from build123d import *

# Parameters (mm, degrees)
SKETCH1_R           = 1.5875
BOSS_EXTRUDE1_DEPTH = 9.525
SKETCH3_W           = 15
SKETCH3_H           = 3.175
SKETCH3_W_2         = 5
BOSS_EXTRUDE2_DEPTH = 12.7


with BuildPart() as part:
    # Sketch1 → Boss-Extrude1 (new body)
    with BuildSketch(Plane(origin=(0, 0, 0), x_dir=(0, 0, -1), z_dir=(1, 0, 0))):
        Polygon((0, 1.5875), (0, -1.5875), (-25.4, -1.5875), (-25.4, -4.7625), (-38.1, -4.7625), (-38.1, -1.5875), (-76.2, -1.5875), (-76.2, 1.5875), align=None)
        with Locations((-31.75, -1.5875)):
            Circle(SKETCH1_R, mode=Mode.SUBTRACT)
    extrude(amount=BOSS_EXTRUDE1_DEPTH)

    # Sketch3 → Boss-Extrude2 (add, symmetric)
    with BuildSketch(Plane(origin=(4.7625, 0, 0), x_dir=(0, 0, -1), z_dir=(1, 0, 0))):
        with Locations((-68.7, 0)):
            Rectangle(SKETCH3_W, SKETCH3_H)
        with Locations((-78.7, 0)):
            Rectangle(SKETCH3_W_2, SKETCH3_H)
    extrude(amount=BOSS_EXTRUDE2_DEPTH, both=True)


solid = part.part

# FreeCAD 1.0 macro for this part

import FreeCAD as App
import Part
import Sketcher
from FreeCAD import Vector
Q = App.Units.Quantity

doc = App.newDocument("Part")
params = doc.addObject("Spreadsheet::Sheet", "Params")
for row, (alias, value) in enumerate([
    ("sketch1_height", "3 in"),
    ("sketch1_height2", "1 in"),
    ("sketch1_diameter", "0.125 in"),
    ("sketch1_height3", "1.5 in"),
    ("sketch1_width", "0.125 in"),
    ("pad1_length", "0.375 in"),
    ("sketch2_width", "0.125 in"),
    ("pad2_length", "1 in"),
], start=1):
    params.set(f"A{row}", alias)
    params.set(f"B{row}", "=" + value)
    params.setAlias(f"B{row}", alias)

body = doc.addObject("PartDesign::Body", "Body")

sketch1 = doc.addObject("Sketcher::SketchObject", "Sketch")
body.addObject(sketch1)
sketch1.AttachmentSupport = (doc.YZ_Plane, [""])
sketch1.MapMode = "FlatFace"
sketch1.addGeometry(Part.LineSegment(Vector(-1.5875, 0, 0), Vector(1.5875, 0, 0)), False)
sketch1.addGeometry(Part.LineSegment(Vector(1.5875, 0, 0), Vector(1.5875, 76.2, 0)), False)
sketch1.addGeometry(Part.LineSegment(Vector(1.5875, 76.2, 0), Vector(-1.5875, 76.2, 0)), False)
sketch1.addGeometry(Part.LineSegment(Vector(-1.5875, 76.2, 0), Vector(-1.5875, 38.1, 0)), False)
sketch1.addGeometry(Part.LineSegment(Vector(-1.5875, 38.1, 0), Vector(-4.7625, 38.1, 0)), False)
sketch1.addGeometry(Part.LineSegment(Vector(-4.7625, 38.1, 0), Vector(-4.7625, 25.4, 0)), False)
sketch1.addGeometry(Part.LineSegment(Vector(-4.7625, 25.4, 0), Vector(-1.5875, 25.4, 0)), False)
sketch1.addGeometry(Part.LineSegment(Vector(-1.5875, 25.4, 0), Vector(-1.5875, 0, 0)), False)
sketch1.addGeometry(Part.Circle(Vector(-1.5875, 31.75, 0), Vector(0, 0, 1), 1.5875), False)
sketch1.addConstraint(Sketcher.Constraint("Coincident", 0, 2, 1, 1))
sketch1.addConstraint(Sketcher.Constraint("Coincident", 1, 2, 2, 1))
sketch1.addConstraint(Sketcher.Constraint("Coincident", 2, 2, 3, 1))
sketch1.addConstraint(Sketcher.Constraint("Coincident", 3, 2, 4, 1))
sketch1.addConstraint(Sketcher.Constraint("Coincident", 4, 2, 5, 1))
sketch1.addConstraint(Sketcher.Constraint("Coincident", 5, 2, 6, 1))
sketch1.addConstraint(Sketcher.Constraint("Coincident", 6, 2, 7, 1))
sketch1.addConstraint(Sketcher.Constraint("Coincident", 7, 2, 0, 1))
sketch1.addConstraint(Sketcher.Constraint("Horizontal", 0))
sketch1.addConstraint(Sketcher.Constraint("Vertical", 1))
sketch1.addConstraint(Sketcher.Constraint("Horizontal", 2))
sketch1.addConstraint(Sketcher.Constraint("Vertical", 3))
sketch1.addConstraint(Sketcher.Constraint("Horizontal", 4))
sketch1.addConstraint(Sketcher.Constraint("Vertical", 5))
sketch1.addConstraint(Sketcher.Constraint("Horizontal", 6))
sketch1.addConstraint(Sketcher.Constraint("Vertical", 7))
sketch1.addConstraint(Sketcher.Constraint("Symmetric", 0, 2, 7, 2, -1, 1))
sketch1.addConstraint(Sketcher.Constraint("Vertical", 8, 3, 2, 2))
sketch1.addConstraint(Sketcher.Constraint("Vertical", 3, 2, 6, 2))
sketch1.addConstraint(Sketcher.Constraint("Equal", 2, 4))
sketch1.addConstraint(Sketcher.Constraint("DistanceY", 1, 1, 1, 2, Q("3 in")))
sketch1.addConstraint(Sketcher.Constraint("DistanceY", 7, 2, 7, 1, Q("1 in")))
sketch1.addConstraint(Sketcher.Constraint("Diameter", 8, Q("0.125 in")))
sketch1.addConstraint(Sketcher.Constraint("DistanceY", 3, 2, 3, 1, Q("1.5 in")))
sketch1.addConstraint(Sketcher.Constraint("DistanceX", 0, 1, 0, 2, Q("0.125 in")))
sketch1.addConstraint(Sketcher.Constraint("DistanceY", -1, 1, 8, 3, Q("1.25 in")))
sketch1.setExpression("Constraints[20]", "Params.sketch1_height")
sketch1.setExpression("Constraints[21]", "Params.sketch1_height2")
sketch1.setExpression("Constraints[22]", "Params.sketch1_diameter")
sketch1.setExpression("Constraints[23]", "Params.sketch1_height3")
sketch1.setExpression("Constraints[24]", "Params.sketch1_width")
pad1 = doc.addObject("PartDesign::Pad", "Pad")
body.addObject(pad1)
pad1.Profile = sketch1
pad1.setExpression("Length", "Params.pad1_length")

sketch2 = doc.addObject("Sketcher::SketchObject", "Sketch001")
body.addObject(sketch2)
sketch2.AttachmentSupport = (doc.YZ_Plane, [""])
sketch2.MapMode = "FlatFace"
sketch2.AttachmentOffset = App.Placement(Vector(0, 0, 0.1875 * 25.4), App.Rotation())
sketch2.addGeometry(Part.LineSegment(Vector(-1.5875, 61.2, 0), Vector(1.5875, 61.2, 0)), False)
sketch2.addGeometry(Part.LineSegment(Vector(1.5875, 61.2, 0), Vector(1.5875, 81.2, 0)), False)
sketch2.addGeometry(Part.LineSegment(Vector(1.5875, 81.2, 0), Vector(-1.5875, 81.2, 0)), False)
sketch2.addGeometry(Part.LineSegment(Vector(-1.5875, 81.2, 0), Vector(-1.5875, 61.2, 0)), False)
sketch2.addConstraint(Sketcher.Constraint("Coincident", 0, 2, 1, 1))
sketch2.addConstraint(Sketcher.Constraint("Coincident", 1, 2, 2, 1))
sketch2.addConstraint(Sketcher.Constraint("Coincident", 2, 2, 3, 1))
sketch2.addConstraint(Sketcher.Constraint("Coincident", 3, 2, 0, 1))
sketch2.addConstraint(Sketcher.Constraint("Horizontal", 0))
sketch2.addConstraint(Sketcher.Constraint("Vertical", 1))
sketch2.addConstraint(Sketcher.Constraint("Horizontal", 2))
sketch2.addConstraint(Sketcher.Constraint("Vertical", 3))
sketch2.addConstraint(Sketcher.Constraint("DistanceX", 0, 1, 0, 2, Q("0.125 in")))
sketch2.addConstraint(Sketcher.Constraint("DistanceX", -1, 1, 0, 2, Q("0.0625 in")))
sketch2.addConstraint(Sketcher.Constraint("DistanceY", 1, 1, 1, 2, 20.0))
sketch2.addConstraint(Sketcher.Constraint("DistanceY", -1, 1, 0, 2, 61.2))
sketch2.setExpression("Constraints[8]", "Params.sketch2_width")
pad2 = doc.addObject("PartDesign::Pad", "Pad001")
body.addObject(pad2)
pad2.Profile = sketch2
pad2.setExpression("Length", "Params.pad2_length")
pad2.Midplane = True

doc.recompute()
